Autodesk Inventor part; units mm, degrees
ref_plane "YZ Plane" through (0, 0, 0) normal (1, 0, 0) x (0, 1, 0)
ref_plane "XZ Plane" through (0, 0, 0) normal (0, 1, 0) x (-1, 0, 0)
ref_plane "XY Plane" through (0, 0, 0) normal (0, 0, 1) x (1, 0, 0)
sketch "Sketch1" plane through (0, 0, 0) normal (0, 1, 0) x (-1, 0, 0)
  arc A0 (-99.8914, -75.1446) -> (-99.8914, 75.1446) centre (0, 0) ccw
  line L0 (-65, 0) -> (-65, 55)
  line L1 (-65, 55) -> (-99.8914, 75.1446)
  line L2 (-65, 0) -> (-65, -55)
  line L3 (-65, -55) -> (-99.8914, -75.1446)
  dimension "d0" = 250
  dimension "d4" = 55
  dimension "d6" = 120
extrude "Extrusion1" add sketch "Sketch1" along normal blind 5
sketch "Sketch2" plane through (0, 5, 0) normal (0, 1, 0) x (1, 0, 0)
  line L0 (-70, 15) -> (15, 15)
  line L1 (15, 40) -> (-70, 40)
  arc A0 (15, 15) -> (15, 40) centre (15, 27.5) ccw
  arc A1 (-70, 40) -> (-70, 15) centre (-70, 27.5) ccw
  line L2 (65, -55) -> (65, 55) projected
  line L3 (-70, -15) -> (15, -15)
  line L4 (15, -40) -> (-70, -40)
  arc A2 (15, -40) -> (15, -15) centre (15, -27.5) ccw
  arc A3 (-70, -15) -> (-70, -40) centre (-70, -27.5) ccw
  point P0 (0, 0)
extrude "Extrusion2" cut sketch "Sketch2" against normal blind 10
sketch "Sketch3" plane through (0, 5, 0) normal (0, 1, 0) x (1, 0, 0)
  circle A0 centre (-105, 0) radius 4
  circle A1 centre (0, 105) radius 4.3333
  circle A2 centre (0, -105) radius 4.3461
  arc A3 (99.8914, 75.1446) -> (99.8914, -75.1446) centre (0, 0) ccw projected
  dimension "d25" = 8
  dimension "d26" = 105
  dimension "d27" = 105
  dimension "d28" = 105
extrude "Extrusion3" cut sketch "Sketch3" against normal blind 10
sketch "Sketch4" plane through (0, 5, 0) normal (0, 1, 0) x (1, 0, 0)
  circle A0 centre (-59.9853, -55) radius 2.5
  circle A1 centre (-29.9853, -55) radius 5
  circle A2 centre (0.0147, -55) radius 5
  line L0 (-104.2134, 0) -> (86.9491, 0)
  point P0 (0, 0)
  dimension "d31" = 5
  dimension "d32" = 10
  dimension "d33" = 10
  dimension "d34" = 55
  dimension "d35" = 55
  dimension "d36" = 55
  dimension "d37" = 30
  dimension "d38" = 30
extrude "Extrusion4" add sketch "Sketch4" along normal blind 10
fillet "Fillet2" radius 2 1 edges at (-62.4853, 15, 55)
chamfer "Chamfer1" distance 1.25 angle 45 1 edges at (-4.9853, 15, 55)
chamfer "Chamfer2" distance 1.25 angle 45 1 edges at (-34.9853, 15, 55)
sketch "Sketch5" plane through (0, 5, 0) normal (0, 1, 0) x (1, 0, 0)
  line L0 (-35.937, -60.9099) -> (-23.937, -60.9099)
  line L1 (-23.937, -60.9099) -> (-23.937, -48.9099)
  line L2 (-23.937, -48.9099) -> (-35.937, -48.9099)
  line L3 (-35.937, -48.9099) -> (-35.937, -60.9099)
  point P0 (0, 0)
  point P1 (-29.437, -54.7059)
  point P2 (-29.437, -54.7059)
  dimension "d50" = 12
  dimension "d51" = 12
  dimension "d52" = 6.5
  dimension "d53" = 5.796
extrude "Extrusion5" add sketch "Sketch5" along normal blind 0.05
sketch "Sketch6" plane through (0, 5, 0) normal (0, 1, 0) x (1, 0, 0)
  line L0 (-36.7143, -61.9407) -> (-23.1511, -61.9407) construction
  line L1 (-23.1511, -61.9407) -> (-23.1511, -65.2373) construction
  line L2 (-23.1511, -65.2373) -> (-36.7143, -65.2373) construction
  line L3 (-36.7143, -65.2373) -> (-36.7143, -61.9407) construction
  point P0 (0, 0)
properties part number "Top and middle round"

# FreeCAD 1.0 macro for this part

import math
import FreeCAD as App
import Part
import Sketcher

V = App.Vector
Q = App.Units.Quantity


def edges_at(feature, points):
    """Names of the edges that pass closest to the given points."""
    edges = feature.Shape.Edges
    near = lambda p: min(range(len(edges)), key=lambda i: edges[i].distToShape(Part.Vertex(*p))[0])
    return sorted({f"Edge{near(p) + 1}" for p in points})


def add_polygon(sketch, points):
    """Adds a closed chain of lines whose ends are joined by coincident constraints."""
    first, n = sketch.GeometryCount, len(points)
    for a, b in zip(points, points[1:] + points[:1]):
        sketch.addGeometry(Part.LineSegment(App.Vector(*a, 0), App.Vector(*b, 0)), False)
    for i in range(n):
        sketch.addConstraint(Sketcher.Constraint("Coincident", first + i, 2, first + (i + 1) % n, 1))

doc = App.newDocument("Part")
body = doc.addObject("PartDesign::Body", "Body")

sketch1 = body.newObject("Sketcher::SketchObject", "Sketch")
sketch1.AttachmentSupport = (doc.getObject("XZ_Plane"), [""])
sketch1.MapMode = "FlatFace"
sketch1.addGeometry(Part.LineSegment(V(65, -55, 0), V(100, -75, 0)), False)
sketch1.addGeometry(Part.ArcOfCircle(Part.Circle(V(0, 0, 0), V(0, 0, 1), 125), math.radians(37), math.radians(323)), False)
sketch1.addGeometry(Part.LineSegment(V(100, 75, 0), V(65, 55, 0)), False)
sketch1.addGeometry(Part.LineSegment(V(65, 55, 0), V(65, -55, 0)), False)
sketch1.addConstraint(Sketcher.Constraint("Coincident", 0, 2, 1, 2))
sketch1.addConstraint(Sketcher.Constraint("Coincident", 1, 1, 2, 1))
sketch1.addConstraint(Sketcher.Constraint("Coincident", 2, 2, 3, 1))
sketch1.addConstraint(Sketcher.Constraint("Coincident", 3, 2, 0, 1))
sketch1.addConstraint(Sketcher.Constraint("Vertical", 3))
sketch1.addConstraint(Sketcher.Constraint("Coincident", 1, 3, -1, 1))
sketch1.addConstraint(Sketcher.Constraint("Vertical", 0, 2, 1, 1))
sketch1.addConstraint(Sketcher.Constraint("Equal", 0, 2))
sketch1.addConstraint(Sketcher.Constraint("Radius", 1, Q("125 mm")))
sketch1.addConstraint(Sketcher.Constraint("DistanceY", -1, 1, 2, 2, Q("55 mm")))
sketch1.addConstraint(Sketcher.Constraint("Angle", 0, Q("-30 deg")))
sketch1.addConstraint(Sketcher.Constraint("DistanceX", -1, 1, 2, 2, Q("65 mm")))
pad1 = body.newObject("PartDesign::Pad", "Pad")
pad1.Profile = sketch1
pad1.Length = 5
pad1.Reversed = True

sketch2 = body.newObject("Sketcher::SketchObject", "Sketch001")
sketch2.AttachmentSupport = (doc.getObject("XZ_Plane"), [""])
sketch2.MapMode = "FlatFace"
sketch2.AttachmentOffset = App.Placement(V(0, 0, -5), App.Rotation())
sketch2.addGeometry(Part.ArcOfCircle(Part.Circle(V(-70, -28, 0), V(0, 0, 1), 12), math.radians(90), math.radians(270)), False)
sketch2.addGeometry(Part.LineSegment(V(-70, -15, 0), V(15, -15, 0)), False)
sketch2.addGeometry(Part.ArcOfCircle(Part.Circle(V(15, -28, 0), V(0, 0, 1), 12), math.radians(-90), math.radians(90)), False)
sketch2.addGeometry(Part.LineSegment(V(15, -40, 0), V(-70, -40, 0)), False)
sketch2.addGeometry(Part.LineSegment(V(15, 15, 0), V(-70, 15, 0)), False)
sketch2.addGeometry(Part.ArcOfCircle(Part.Circle(V(-70, 28, 0), V(0, 0, 1), 12), math.radians(90), math.radians(270)), False)
sketch2.addGeometry(Part.LineSegment(V(-70, 40, 0), V(15, 40, 0)), False)
sketch2.addGeometry(Part.ArcOfCircle(Part.Circle(V(15, 28, 0), V(0, 0, 1), 12), math.radians(-90), math.radians(90)), False)
sketch2.addConstraint(Sketcher.Constraint("Tangent", 0, 1, 1, 1))
sketch2.addConstraint(Sketcher.Constraint("Tangent", 1, 2, 2, 2))
sketch2.addConstraint(Sketcher.Constraint("Tangent", 2, 1, 3, 1))
sketch2.addConstraint(Sketcher.Constraint("Tangent", 3, 2, 0, 2))
sketch2.addConstraint(Sketcher.Constraint("Tangent", 4, 2, 5, 2))
sketch2.addConstraint(Sketcher.Constraint("Tangent", 5, 1, 6, 1))
sketch2.addConstraint(Sketcher.Constraint("Tangent", 6, 2, 7, 2))
sketch2.addConstraint(Sketcher.Constraint("Tangent", 7, 1, 4, 1))
sketch2.addConstraint(Sketcher.Constraint("Horizontal", 1))
sketch2.addConstraint(Sketcher.Constraint("Horizontal", 3))
sketch2.addConstraint(Sketcher.Constraint("Horizontal", 4))
sketch2.addConstraint(Sketcher.Constraint("Horizontal", 6))
sketch2.addConstraint(Sketcher.Constraint("Equal", 2, 5))
sketch2.addConstraint(Sketcher.Constraint("Symmetric", 0, 3, 5, 3, -1))
sketch2.addConstraint(Sketcher.Constraint("Vertical", 2, 3, 7, 3))
sketch2.addConstraint(Sketcher.Constraint("Radius", 0, Q("12.5 mm")))
sketch2.addConstraint(Sketcher.Constraint("DistanceX", 1, 1, 1, 2, Q("85 mm")))
sketch2.addConstraint(Sketcher.Constraint("DistanceX", 0, 3, -1, 1, Q("70 mm")))
sketch2.addConstraint(Sketcher.Constraint("DistanceY", 0, 1, -1, 1, Q("15 mm")))
pocket1 = body.newObject("PartDesign::Pocket", "Pocket")
pocket1.Profile = sketch2
pocket1.Length = 10
pocket1.Reversed = True

sketch3 = body.newObject("Sketcher::SketchObject", "Sketch002")
sketch3.AttachmentSupport = (doc.getObject("XZ_Plane"), [""])
sketch3.MapMode = "FlatFace"
sketch3.AttachmentOffset = App.Placement(V(0, 0, -5), App.Rotation())
sketch3.addGeometry(Part.Circle(V(-105, 0, 0), V(0, 0, 1), 4), False)
sketch3.addGeometry(Part.Circle(V(0, -105, 0), V(0, 0, 1), 4.3), False)
sketch3.addGeometry(Part.Circle(V(0, 105, 0), V(0, 0, 1), 4.3), False)
sketch3.addConstraint(Sketcher.Constraint("Symmetric", 1, 3, 2, 3, -1, 1))
sketch3.addConstraint(Sketcher.Constraint("PointOnObject", 0, 3, -1))
sketch3.addConstraint(Sketcher.Constraint("PointOnObject", 1, 3, -2))
sketch3.addConstraint(Sketcher.Constraint("Diameter", 0, Q("8 mm")))
sketch3.addConstraint(Sketcher.Constraint("DistanceX", 0, 3, -1, 1, Q("105 mm")))
sketch3.addConstraint(Sketcher.Constraint("DistanceY", 1, 3, -1, 1, Q("105 mm")))
sketch3.addConstraint(Sketcher.Constraint("Diameter", 1, Q("8.6666 mm")))
sketch3.addConstraint(Sketcher.Constraint("Diameter", 2, Q("8.6922 mm")))
pocket2 = body.newObject("PartDesign::Pocket", "Pocket001")
pocket2.Profile = sketch3
pocket2.Length = 10
pocket2.Reversed = True

sketch4 = body.newObject("Sketcher::SketchObject", "Sketch003")
sketch4.AttachmentSupport = (doc.getObject("XZ_Plane"), [""])
sketch4.MapMode = "FlatFace"
sketch4.AttachmentOffset = App.Placement(V(0, 0, -5), App.Rotation())
sketch4.addGeometry(Part.Circle(V(-60, 55, 0), V(0, 0, 1), 2.5), False)
sketch4.addGeometry(Part.Circle(V(-30, 55, 0), V(0, 0, 1), 5), False)
sketch4.addGeometry(Part.Circle(V(0, 55, 0), V(0, 0, 1), 5), False)
sketch4.addConstraint(Sketcher.Constraint("Equal", 1, 2))
sketch4.addConstraint(Sketcher.Constraint("Horizontal", 0, 3, 1, 3))
sketch4.addConstraint(Sketcher.Constraint("Horizontal", 1, 3, 2, 3))
sketch4.addConstraint(Sketcher.Constraint("Diameter", 0, Q("5 mm")))
sketch4.addConstraint(Sketcher.Constraint("Diameter", 1, Q("10 mm")))
sketch4.addConstraint(Sketcher.Constraint("DistanceY", -1, 1, 0, 3, Q("55 mm")))
sketch4.addConstraint(Sketcher.Constraint("DistanceX", 0, 3, 1, 3, Q("30 mm")))
sketch4.addConstraint(Sketcher.Constraint("DistanceX", 1, 3, 2, 3, Q("30 mm")))
sketch4.addConstraint(Sketcher.Constraint("DistanceX", 0, 3, -1, 1, Q("59.9853 mm")))
pad2 = body.newObject("PartDesign::Pad", "Pad001")
pad2.Profile = sketch4
pad2.Length = 10
pad2.Reversed = True
doc.recompute()

fillet = body.newObject("PartDesign::Fillet", "Fillet")
fillet.Base = (pad2, edges_at(pad2, [(-62.485, 15, 55)]))
fillet.Radius = 2
doc.recompute()

chamfer = body.newObject("PartDesign::Chamfer", "Chamfer")
chamfer.Base = (fillet, edges_at(fillet, [(-4.985, 15, 55)]))
chamfer.Size = 1.25
doc.recompute()

chamfer2 = body.newObject("PartDesign::Chamfer", "Chamfer001")
chamfer2.Base = (chamfer, edges_at(chamfer, [(-34.985, 15, 55)]))
chamfer2.Size = 1.25

sketch5 = body.newObject("Sketcher::SketchObject", "Sketch004")
sketch5.AttachmentSupport = (doc.getObject("XZ_Plane"), [""])
sketch5.MapMode = "FlatFace"
sketch5.AttachmentOffset = App.Placement(V(0, 0, -5), App.Rotation())
add_polygon(sketch5, [(-36, 49), (-36, 61), (-24, 61), (-24, 49)])
sketch5.addConstraint(Sketcher.Constraint("Vertical", 0))
sketch5.addConstraint(Sketcher.Constraint("Horizontal", 1))
sketch5.addConstraint(Sketcher.Constraint("Vertical", 2))
sketch5.addConstraint(Sketcher.Constraint("Horizontal", 3))
sketch5.addConstraint(Sketcher.Constraint("Equal", 3, 0))
sketch5.addConstraint(Sketcher.Constraint("DistanceX", 1, 1, 1, 2, Q("12 mm")))
sketch5.addConstraint(Sketcher.Constraint("DistanceY", -1, 1, 0, 2, Q("60.91 mm")))
sketch5.addConstraint(Sketcher.Constraint("DistanceX", 0, 2, -1, 1, Q("35.937 mm")))
pad3 = body.newObject("PartDesign::Pad", "Pad002")
pad3.Profile = sketch5
pad3.Length = 0.05
pad3.Reversed = True

doc.recompute()
